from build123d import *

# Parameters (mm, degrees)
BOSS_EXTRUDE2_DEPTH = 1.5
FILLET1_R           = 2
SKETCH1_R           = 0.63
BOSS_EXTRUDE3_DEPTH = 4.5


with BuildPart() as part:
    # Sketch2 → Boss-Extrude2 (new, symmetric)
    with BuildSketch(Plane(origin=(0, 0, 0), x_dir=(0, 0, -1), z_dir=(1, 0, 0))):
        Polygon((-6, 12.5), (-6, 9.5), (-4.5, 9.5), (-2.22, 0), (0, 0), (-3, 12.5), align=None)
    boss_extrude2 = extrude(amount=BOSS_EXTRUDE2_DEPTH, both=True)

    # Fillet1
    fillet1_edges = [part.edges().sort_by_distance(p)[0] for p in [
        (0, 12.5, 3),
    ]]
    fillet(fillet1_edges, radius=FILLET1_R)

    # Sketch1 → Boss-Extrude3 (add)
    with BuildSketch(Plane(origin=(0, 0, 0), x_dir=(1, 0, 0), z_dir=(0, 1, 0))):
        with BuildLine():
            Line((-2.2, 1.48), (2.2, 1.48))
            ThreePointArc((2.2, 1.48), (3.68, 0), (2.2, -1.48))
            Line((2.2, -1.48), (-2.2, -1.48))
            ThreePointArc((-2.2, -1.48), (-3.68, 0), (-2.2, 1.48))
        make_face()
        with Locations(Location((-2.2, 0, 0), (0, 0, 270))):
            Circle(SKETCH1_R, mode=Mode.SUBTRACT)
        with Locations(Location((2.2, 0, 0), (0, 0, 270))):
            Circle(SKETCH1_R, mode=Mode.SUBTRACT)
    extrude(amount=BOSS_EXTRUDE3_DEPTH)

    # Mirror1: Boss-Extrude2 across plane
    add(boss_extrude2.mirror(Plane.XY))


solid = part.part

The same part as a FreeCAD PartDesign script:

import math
import FreeCAD as App
import Part
import Sketcher
from FreeCAD import Vector
Q = App.Units.Quantity


def edges_at(feature, points):
    """Names of the edges that pass closest to the given points."""
    edges = feature.Shape.Edges
    near = lambda p: min(range(len(edges)), key=lambda i: edges[i].distToShape(Part.Vertex(*p))[0])
    return sorted({f"Edge{near(p) + 1}" for p in points})


def add_polygon(sketch, points):
    """Adds a closed chain of lines whose ends are joined by coincident constraints."""
    first, n = sketch.GeometryCount, len(points)
    for a, b in zip(points, points[1:] + points[:1]):
        sketch.addGeometry(Part.LineSegment(App.Vector(*a, 0), App.Vector(*b, 0)), False)
    for i in range(n):
        sketch.addConstraint(Sketcher.Constraint("Coincident", first + i, 2, first + (i + 1) % n, 1))

doc = App.newDocument("Part")
body = doc.addObject("PartDesign::Body", "Body")

# Sketch on YZ plane
sketch1 = body.newObject("Sketcher::SketchObject", "Sketch")
sketch1.AttachmentSupport = (doc.getObject("YZ_Plane"), [""])
sketch1.MapMode = "FlatFace"
add_polygon(sketch1, [(12.5, 6), (9.5, 6), (9.5, 4.5), (0, 2.2), (0, 0), (12.5, 3)])  # lines 0-5
sketch1.addConstraint(Sketcher.Constraint("Horizontal", 0))
sketch1.addConstraint(Sketcher.Constraint("Vertical", 1))
sketch1.addConstraint(Sketcher.Constraint("Vertical", 3))
sketch1.addConstraint(Sketcher.Constraint("Vertical", 5))
sketch1.addConstraint(Sketcher.Constraint("Coincident", 3, 2, -1, 1))
sketch1.addConstraint(Sketcher.Constraint("Parallel", 2, 4))
sketch1.addConstraint(Sketcher.Constraint("Equal", 0, 5))
sketch1.addConstraint(Sketcher.Constraint("DistanceX", 0, 2, 0, 1, Q("3 mm")))
sketch1.addConstraint(Sketcher.Constraint("DistanceY", 1, 2, 1, 1, Q("1.5 mm")))
sketch1.addConstraint(Sketcher.Constraint("DistanceY", -1, 1, 0, 2, Q("6 mm")))
sketch1.addConstraint(Sketcher.Constraint("DistanceY", 3, 2, 3, 1, Q("2.22 mm")))
pad1 = body.newObject("PartDesign::Pad", "Pad")
pad1.Profile = sketch1
pad1.Length = 3
pad1.Midplane = True
doc.recompute()

fillet = body.newObject("PartDesign::Fillet", "Fillet")
fillet.Base = (pad1, edges_at(pad1, [(0, 12.5, 3)]))
fillet.Radius = 2

# Sketch on XZ plane
sketch2 = body.newObject("Sketcher::SketchObject", "Sketch001")
sketch2.AttachmentSupport = (doc.getObject("XZ_Plane"), [""])
sketch2.MapMode = "FlatFace"
sketch2.addGeometry(Part.LineSegment(Vector(2.2, -1.5, 0), Vector(-2.2, -1.5, 0)), False)
sketch2.addGeometry(Part.ArcOfCircle(Part.Circle(Vector(-2.2, 0, 0), Vector(0, 0, 1), 1.5), math.radians(90), math.radians(270)), False)
sketch2.addGeometry(Part.LineSegment(Vector(-2.2, 1.5, 0), Vector(2.2, 1.5, 0)), False)
sketch2.addGeometry(Part.ArcOfCircle(Part.Circle(Vector(2.2, 0, 0), Vector(0, 0, 1), 1.5), math.radians(-90), math.radians(90)), False)
sketch2.addGeometry(Part.Circle(Vector(2.2, 0, 0), Vector(0, 0, 1), 0.6), False)
sketch2.addGeometry(Part.Circle(Vector(-2.2, 0, 0), Vector(0, 0, 1), 0.6), False)
sketch2.addConstraint(Sketcher.Constraint("Tangent", 0, 2, 1, 2))
sketch2.addConstraint(Sketcher.Constraint("Tangent", 1, 1, 2, 1))
sketch2.addConstraint(Sketcher.Constraint("Tangent", 2, 2, 3, 2))
sketch2.addConstraint(Sketcher.Constraint("Tangent", 3, 1, 0, 1))
sketch2.addConstraint(Sketcher.Constraint("Horizontal", 0))
sketch2.addConstraint(Sketcher.Constraint("Horizontal", 2))
sketch2.addConstraint(Sketcher.Constraint("Coincident", 4, 3, 3, 3))
sketch2.addConstraint(Sketcher.Constraint("Coincident", 5, 3, 1, 3))
sketch2.addConstraint(Sketcher.Constraint("Equal", 4, 5))
sketch2.addConstraint(Sketcher.Constraint("Symmetric", 1, 3, 3, 3, -1, 1))
sketch2.addConstraint(Sketcher.Constraint("Diameter", 4, Q("1.26 mm")))
sketch2.addConstraint(Sketcher.Constraint("Radius", 1, Q("1.48 mm")))
sketch2.addConstraint(Sketcher.Constraint("DistanceX", 0, 2, 0, 1, Q("4.4 mm")))
pad2 = body.newObject("PartDesign::Pad", "Pad001")
pad2.Profile = sketch2
pad2.Length = 4.5
pad2.Reversed = True
doc.recompute()

mirrored = body.newObject("PartDesign::Mirrored", "Mirrored")
mirrored.Originals = [pad1]
mirrored.MirrorPlane = (doc.getObject("XY_Plane"), [""])
body.Tip = mirrored

doc.recompute()
